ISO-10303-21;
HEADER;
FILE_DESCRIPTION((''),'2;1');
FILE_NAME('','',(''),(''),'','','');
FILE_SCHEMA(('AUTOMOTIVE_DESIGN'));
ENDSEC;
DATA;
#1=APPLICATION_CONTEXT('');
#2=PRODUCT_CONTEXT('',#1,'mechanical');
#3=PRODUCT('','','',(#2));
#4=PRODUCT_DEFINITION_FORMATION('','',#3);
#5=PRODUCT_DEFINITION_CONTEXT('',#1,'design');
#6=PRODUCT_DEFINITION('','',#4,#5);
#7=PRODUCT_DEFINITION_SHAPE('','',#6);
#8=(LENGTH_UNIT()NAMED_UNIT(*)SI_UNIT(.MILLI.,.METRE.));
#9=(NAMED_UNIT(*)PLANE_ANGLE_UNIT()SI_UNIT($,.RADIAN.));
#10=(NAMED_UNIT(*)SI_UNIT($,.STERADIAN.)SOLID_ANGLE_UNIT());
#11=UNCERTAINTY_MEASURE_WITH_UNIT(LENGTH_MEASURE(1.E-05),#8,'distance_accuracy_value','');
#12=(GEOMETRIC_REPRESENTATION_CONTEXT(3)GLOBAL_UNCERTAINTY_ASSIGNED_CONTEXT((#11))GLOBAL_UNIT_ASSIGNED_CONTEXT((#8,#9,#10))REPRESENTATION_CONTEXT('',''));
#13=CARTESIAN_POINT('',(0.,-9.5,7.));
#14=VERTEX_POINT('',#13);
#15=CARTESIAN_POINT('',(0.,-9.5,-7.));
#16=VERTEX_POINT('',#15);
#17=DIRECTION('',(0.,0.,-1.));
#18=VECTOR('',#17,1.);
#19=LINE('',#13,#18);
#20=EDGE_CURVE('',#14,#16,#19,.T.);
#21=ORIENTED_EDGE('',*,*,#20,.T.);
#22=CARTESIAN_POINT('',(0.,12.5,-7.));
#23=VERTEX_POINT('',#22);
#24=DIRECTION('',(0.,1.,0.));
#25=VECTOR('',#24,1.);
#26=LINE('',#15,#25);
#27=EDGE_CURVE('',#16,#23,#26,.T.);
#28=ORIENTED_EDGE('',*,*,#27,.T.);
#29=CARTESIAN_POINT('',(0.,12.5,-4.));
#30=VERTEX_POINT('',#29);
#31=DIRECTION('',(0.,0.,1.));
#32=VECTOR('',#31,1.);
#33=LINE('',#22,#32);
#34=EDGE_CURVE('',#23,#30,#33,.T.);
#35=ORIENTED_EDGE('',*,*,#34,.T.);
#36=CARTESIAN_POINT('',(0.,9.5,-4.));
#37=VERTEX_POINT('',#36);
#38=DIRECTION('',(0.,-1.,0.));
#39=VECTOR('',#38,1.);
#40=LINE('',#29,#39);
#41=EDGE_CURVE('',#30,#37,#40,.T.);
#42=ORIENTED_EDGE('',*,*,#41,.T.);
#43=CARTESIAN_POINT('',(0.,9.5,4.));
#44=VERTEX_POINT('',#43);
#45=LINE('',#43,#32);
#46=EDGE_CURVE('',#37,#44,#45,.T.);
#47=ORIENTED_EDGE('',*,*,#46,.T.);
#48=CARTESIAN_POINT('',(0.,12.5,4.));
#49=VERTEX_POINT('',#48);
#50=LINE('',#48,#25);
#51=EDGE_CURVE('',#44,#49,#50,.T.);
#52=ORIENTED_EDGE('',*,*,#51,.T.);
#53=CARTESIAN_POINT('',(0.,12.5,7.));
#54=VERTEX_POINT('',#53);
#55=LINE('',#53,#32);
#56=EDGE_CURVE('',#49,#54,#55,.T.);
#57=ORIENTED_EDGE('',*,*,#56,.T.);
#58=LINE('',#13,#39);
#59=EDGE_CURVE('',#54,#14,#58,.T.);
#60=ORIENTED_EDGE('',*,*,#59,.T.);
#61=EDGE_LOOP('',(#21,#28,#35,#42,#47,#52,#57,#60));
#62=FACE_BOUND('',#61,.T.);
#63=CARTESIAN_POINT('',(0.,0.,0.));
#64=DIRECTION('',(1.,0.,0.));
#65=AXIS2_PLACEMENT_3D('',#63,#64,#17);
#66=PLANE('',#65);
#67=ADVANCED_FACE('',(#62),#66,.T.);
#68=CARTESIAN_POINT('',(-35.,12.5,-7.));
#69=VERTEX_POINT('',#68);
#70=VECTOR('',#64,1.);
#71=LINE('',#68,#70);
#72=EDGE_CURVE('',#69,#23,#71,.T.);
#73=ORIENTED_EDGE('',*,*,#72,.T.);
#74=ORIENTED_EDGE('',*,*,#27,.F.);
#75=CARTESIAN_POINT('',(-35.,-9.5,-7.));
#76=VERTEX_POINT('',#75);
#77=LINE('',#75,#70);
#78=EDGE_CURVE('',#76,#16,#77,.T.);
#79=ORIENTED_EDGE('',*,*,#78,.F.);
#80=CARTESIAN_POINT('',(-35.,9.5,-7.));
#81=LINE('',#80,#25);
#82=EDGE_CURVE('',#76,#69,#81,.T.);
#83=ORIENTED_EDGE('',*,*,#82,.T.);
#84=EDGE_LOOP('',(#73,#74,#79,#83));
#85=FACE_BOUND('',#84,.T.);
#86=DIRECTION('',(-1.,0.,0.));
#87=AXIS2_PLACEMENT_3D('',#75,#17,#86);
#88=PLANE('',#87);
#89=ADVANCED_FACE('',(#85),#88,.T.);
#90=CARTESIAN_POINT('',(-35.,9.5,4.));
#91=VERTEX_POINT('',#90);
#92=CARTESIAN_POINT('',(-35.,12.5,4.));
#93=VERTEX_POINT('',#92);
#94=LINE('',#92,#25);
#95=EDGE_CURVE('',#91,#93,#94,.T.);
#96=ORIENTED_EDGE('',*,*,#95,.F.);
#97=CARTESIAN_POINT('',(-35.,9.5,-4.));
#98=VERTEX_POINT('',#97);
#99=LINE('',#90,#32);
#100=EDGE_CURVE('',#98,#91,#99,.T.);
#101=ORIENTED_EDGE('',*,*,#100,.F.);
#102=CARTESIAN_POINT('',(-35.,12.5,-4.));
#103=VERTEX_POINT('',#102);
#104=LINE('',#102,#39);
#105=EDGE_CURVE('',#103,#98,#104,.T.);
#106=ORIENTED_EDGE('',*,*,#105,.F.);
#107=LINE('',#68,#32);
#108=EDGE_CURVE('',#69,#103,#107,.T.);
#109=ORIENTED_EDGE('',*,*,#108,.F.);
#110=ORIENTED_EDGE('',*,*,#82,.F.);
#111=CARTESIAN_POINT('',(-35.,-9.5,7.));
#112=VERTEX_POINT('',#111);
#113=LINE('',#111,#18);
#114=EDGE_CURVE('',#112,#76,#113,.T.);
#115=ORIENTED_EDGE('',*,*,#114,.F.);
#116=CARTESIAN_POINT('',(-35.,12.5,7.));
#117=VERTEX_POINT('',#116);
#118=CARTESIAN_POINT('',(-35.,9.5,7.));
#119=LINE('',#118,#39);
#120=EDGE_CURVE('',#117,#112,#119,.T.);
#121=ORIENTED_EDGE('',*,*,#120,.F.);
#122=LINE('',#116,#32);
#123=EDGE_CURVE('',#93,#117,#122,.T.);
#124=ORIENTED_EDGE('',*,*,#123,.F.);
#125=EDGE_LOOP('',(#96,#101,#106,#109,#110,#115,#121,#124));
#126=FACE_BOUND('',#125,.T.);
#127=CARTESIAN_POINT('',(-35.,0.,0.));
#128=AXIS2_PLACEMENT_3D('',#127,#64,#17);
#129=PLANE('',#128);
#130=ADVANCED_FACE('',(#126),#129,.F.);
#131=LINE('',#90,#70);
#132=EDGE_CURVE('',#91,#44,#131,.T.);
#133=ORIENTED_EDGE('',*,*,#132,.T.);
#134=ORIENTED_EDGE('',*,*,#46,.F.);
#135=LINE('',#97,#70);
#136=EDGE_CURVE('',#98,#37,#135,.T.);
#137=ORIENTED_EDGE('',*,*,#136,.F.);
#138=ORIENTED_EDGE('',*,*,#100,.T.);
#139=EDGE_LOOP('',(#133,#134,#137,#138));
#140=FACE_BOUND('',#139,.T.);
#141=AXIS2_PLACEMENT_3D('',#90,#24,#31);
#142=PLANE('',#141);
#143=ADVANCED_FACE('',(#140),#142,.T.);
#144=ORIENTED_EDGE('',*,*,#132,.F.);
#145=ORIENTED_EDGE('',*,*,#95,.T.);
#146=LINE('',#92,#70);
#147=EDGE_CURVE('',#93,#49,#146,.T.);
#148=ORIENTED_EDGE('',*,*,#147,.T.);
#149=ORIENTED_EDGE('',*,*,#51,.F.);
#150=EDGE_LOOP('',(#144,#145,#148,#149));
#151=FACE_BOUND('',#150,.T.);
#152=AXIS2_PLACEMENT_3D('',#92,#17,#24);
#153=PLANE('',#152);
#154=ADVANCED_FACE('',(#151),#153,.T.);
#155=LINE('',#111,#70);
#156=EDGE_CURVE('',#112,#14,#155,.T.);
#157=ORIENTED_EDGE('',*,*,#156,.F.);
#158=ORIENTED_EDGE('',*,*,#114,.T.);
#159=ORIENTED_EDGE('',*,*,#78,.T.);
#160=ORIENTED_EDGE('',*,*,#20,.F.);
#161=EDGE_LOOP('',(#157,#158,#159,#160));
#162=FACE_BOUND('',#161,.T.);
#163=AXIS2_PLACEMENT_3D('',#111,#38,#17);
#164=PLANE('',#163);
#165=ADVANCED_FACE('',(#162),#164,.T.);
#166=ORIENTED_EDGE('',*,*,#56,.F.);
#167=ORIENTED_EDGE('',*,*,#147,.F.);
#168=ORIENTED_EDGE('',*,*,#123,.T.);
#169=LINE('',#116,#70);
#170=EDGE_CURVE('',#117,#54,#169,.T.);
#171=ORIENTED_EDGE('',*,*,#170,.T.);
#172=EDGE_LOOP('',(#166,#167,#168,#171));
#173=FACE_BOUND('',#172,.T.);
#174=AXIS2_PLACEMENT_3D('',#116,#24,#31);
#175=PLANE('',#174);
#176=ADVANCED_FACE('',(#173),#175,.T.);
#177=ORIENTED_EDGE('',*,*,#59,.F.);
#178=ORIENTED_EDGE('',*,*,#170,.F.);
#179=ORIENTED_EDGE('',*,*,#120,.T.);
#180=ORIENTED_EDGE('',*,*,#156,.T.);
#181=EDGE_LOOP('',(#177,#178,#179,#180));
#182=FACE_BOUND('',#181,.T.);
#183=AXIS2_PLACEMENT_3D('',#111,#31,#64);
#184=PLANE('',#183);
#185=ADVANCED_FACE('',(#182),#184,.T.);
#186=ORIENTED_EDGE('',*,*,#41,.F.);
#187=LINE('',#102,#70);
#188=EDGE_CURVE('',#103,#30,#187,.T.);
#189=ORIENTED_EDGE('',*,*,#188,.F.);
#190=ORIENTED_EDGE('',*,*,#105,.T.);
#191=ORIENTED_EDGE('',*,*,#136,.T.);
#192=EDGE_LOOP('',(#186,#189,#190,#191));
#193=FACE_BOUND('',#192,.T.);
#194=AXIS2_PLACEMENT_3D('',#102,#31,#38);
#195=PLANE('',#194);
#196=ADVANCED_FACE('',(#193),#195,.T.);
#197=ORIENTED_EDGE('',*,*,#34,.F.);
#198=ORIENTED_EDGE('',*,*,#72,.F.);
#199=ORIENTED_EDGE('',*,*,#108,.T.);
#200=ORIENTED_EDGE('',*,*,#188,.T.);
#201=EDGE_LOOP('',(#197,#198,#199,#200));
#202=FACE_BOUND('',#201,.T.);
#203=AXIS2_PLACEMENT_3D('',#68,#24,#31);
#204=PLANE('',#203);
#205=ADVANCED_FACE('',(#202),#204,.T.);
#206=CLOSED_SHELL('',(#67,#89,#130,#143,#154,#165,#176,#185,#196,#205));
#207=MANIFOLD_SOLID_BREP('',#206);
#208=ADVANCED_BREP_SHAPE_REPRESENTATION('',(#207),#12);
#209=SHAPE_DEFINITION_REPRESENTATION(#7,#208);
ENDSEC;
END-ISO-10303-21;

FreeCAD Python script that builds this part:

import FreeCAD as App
import Part
import Sketcher
from FreeCAD import Vector
Q = App.Units.Quantity

doc = App.newDocument("Part")
params = doc.addObject("Spreadsheet::Sheet", "Params")
for row, (alias, value) in enumerate([
    ("sketch1_width", "22 mm"),
    ("sketch1_width2", "3 mm"),
    ("sketch1_height", "14 mm"),
    ("pad1_length", "35 mm"),
], start=1):
    params.set(f"A{row}", alias)
    params.set(f"B{row}", "=" + value)
    params.setAlias(f"B{row}", alias)

body = doc.addObject("PartDesign::Body", "Body")

sketch1 = body.newObject("Sketcher::SketchObject", "Sketch")
sketch1.AttachmentSupport = (doc.getObject("YZ_Plane"), [""])
sketch1.MapMode = "FlatFace"
sketch1.addGeometry([
    Part.LineSegment(Vector(12.5, 7, 0), Vector(-9.5, 7, 0)),
    Part.LineSegment(Vector(-9.5, 7, 0), Vector(-9.5, -7, 0)),
    Part.LineSegment(Vector(-9.5, -7, 0), Vector(12.5, -7, 0)),
    Part.LineSegment(Vector(12.5, -7, 0), Vector(12.5, -4, 0)),
    Part.LineSegment(Vector(12.5, -4, 0), Vector(9.5, -4, 0)),
    Part.LineSegment(Vector(9.5, -4, 0), Vector(9.5, 4, 0)),
    Part.LineSegment(Vector(9.5, 4, 0), Vector(12.5, 4, 0)),
    Part.LineSegment(Vector(12.5, 4, 0), Vector(12.5, 7, 0)),
], False)
sketch1.addConstraint([
    Sketcher.Constraint("Coincident", 0, 2, 1, 1),
    Sketcher.Constraint("Coincident", 1, 2, 2, 1),
    Sketcher.Constraint("Coincident", 2, 2, 3, 1),
    Sketcher.Constraint("Coincident", 3, 2, 4, 1),
    Sketcher.Constraint("Coincident", 4, 2, 5, 1),
    Sketcher.Constraint("Coincident", 5, 2, 6, 1),
    Sketcher.Constraint("Coincident", 6, 2, 7, 1),
    Sketcher.Constraint("Coincident", 7, 2, 0, 1),
    Sketcher.Constraint("Horizontal", 0),
    Sketcher.Constraint("Vertical", 1),
    Sketcher.Constraint("Horizontal", 2),
    Sketcher.Constraint("Vertical", 3),
    Sketcher.Constraint("Horizontal", 4),
    Sketcher.Constraint("Vertical", 5),
    Sketcher.Constraint("Horizontal", 6),
    Sketcher.Constraint("Vertical", 7),
    Sketcher.Constraint("Symmetric", 3, 2, 6, 2, -1),
    Sketcher.Constraint("Equal", 6, 3),
    Sketcher.Constraint("Equal", 3, 7),
    Sketcher.Constraint("DistanceX", 0, 2, 0, 1, Q("22 mm")),
    Sketcher.Constraint("DistanceX", 4, 2, 4, 1, Q("3 mm")),
    Sketcher.Constraint("DistanceY", 1, 2, 1, 1, Q("14 mm")),
    Sketcher.Constraint("DistanceX", 0, 2, -1, 1, Q("9.5 mm")),
])
sketch1.setExpression("Constraints[19]", "Params.sketch1_width")
sketch1.setExpression("Constraints[20]", "Params.sketch1_width2")
sketch1.setExpression("Constraints[21]", "Params.sketch1_height")
pad1 = body.newObject("PartDesign::Pad", "Pad")
pad1.Profile = sketch1
pad1.setExpression("Length", "Params.pad1_length")
pad1.Reversed = True

doc.recompute()
